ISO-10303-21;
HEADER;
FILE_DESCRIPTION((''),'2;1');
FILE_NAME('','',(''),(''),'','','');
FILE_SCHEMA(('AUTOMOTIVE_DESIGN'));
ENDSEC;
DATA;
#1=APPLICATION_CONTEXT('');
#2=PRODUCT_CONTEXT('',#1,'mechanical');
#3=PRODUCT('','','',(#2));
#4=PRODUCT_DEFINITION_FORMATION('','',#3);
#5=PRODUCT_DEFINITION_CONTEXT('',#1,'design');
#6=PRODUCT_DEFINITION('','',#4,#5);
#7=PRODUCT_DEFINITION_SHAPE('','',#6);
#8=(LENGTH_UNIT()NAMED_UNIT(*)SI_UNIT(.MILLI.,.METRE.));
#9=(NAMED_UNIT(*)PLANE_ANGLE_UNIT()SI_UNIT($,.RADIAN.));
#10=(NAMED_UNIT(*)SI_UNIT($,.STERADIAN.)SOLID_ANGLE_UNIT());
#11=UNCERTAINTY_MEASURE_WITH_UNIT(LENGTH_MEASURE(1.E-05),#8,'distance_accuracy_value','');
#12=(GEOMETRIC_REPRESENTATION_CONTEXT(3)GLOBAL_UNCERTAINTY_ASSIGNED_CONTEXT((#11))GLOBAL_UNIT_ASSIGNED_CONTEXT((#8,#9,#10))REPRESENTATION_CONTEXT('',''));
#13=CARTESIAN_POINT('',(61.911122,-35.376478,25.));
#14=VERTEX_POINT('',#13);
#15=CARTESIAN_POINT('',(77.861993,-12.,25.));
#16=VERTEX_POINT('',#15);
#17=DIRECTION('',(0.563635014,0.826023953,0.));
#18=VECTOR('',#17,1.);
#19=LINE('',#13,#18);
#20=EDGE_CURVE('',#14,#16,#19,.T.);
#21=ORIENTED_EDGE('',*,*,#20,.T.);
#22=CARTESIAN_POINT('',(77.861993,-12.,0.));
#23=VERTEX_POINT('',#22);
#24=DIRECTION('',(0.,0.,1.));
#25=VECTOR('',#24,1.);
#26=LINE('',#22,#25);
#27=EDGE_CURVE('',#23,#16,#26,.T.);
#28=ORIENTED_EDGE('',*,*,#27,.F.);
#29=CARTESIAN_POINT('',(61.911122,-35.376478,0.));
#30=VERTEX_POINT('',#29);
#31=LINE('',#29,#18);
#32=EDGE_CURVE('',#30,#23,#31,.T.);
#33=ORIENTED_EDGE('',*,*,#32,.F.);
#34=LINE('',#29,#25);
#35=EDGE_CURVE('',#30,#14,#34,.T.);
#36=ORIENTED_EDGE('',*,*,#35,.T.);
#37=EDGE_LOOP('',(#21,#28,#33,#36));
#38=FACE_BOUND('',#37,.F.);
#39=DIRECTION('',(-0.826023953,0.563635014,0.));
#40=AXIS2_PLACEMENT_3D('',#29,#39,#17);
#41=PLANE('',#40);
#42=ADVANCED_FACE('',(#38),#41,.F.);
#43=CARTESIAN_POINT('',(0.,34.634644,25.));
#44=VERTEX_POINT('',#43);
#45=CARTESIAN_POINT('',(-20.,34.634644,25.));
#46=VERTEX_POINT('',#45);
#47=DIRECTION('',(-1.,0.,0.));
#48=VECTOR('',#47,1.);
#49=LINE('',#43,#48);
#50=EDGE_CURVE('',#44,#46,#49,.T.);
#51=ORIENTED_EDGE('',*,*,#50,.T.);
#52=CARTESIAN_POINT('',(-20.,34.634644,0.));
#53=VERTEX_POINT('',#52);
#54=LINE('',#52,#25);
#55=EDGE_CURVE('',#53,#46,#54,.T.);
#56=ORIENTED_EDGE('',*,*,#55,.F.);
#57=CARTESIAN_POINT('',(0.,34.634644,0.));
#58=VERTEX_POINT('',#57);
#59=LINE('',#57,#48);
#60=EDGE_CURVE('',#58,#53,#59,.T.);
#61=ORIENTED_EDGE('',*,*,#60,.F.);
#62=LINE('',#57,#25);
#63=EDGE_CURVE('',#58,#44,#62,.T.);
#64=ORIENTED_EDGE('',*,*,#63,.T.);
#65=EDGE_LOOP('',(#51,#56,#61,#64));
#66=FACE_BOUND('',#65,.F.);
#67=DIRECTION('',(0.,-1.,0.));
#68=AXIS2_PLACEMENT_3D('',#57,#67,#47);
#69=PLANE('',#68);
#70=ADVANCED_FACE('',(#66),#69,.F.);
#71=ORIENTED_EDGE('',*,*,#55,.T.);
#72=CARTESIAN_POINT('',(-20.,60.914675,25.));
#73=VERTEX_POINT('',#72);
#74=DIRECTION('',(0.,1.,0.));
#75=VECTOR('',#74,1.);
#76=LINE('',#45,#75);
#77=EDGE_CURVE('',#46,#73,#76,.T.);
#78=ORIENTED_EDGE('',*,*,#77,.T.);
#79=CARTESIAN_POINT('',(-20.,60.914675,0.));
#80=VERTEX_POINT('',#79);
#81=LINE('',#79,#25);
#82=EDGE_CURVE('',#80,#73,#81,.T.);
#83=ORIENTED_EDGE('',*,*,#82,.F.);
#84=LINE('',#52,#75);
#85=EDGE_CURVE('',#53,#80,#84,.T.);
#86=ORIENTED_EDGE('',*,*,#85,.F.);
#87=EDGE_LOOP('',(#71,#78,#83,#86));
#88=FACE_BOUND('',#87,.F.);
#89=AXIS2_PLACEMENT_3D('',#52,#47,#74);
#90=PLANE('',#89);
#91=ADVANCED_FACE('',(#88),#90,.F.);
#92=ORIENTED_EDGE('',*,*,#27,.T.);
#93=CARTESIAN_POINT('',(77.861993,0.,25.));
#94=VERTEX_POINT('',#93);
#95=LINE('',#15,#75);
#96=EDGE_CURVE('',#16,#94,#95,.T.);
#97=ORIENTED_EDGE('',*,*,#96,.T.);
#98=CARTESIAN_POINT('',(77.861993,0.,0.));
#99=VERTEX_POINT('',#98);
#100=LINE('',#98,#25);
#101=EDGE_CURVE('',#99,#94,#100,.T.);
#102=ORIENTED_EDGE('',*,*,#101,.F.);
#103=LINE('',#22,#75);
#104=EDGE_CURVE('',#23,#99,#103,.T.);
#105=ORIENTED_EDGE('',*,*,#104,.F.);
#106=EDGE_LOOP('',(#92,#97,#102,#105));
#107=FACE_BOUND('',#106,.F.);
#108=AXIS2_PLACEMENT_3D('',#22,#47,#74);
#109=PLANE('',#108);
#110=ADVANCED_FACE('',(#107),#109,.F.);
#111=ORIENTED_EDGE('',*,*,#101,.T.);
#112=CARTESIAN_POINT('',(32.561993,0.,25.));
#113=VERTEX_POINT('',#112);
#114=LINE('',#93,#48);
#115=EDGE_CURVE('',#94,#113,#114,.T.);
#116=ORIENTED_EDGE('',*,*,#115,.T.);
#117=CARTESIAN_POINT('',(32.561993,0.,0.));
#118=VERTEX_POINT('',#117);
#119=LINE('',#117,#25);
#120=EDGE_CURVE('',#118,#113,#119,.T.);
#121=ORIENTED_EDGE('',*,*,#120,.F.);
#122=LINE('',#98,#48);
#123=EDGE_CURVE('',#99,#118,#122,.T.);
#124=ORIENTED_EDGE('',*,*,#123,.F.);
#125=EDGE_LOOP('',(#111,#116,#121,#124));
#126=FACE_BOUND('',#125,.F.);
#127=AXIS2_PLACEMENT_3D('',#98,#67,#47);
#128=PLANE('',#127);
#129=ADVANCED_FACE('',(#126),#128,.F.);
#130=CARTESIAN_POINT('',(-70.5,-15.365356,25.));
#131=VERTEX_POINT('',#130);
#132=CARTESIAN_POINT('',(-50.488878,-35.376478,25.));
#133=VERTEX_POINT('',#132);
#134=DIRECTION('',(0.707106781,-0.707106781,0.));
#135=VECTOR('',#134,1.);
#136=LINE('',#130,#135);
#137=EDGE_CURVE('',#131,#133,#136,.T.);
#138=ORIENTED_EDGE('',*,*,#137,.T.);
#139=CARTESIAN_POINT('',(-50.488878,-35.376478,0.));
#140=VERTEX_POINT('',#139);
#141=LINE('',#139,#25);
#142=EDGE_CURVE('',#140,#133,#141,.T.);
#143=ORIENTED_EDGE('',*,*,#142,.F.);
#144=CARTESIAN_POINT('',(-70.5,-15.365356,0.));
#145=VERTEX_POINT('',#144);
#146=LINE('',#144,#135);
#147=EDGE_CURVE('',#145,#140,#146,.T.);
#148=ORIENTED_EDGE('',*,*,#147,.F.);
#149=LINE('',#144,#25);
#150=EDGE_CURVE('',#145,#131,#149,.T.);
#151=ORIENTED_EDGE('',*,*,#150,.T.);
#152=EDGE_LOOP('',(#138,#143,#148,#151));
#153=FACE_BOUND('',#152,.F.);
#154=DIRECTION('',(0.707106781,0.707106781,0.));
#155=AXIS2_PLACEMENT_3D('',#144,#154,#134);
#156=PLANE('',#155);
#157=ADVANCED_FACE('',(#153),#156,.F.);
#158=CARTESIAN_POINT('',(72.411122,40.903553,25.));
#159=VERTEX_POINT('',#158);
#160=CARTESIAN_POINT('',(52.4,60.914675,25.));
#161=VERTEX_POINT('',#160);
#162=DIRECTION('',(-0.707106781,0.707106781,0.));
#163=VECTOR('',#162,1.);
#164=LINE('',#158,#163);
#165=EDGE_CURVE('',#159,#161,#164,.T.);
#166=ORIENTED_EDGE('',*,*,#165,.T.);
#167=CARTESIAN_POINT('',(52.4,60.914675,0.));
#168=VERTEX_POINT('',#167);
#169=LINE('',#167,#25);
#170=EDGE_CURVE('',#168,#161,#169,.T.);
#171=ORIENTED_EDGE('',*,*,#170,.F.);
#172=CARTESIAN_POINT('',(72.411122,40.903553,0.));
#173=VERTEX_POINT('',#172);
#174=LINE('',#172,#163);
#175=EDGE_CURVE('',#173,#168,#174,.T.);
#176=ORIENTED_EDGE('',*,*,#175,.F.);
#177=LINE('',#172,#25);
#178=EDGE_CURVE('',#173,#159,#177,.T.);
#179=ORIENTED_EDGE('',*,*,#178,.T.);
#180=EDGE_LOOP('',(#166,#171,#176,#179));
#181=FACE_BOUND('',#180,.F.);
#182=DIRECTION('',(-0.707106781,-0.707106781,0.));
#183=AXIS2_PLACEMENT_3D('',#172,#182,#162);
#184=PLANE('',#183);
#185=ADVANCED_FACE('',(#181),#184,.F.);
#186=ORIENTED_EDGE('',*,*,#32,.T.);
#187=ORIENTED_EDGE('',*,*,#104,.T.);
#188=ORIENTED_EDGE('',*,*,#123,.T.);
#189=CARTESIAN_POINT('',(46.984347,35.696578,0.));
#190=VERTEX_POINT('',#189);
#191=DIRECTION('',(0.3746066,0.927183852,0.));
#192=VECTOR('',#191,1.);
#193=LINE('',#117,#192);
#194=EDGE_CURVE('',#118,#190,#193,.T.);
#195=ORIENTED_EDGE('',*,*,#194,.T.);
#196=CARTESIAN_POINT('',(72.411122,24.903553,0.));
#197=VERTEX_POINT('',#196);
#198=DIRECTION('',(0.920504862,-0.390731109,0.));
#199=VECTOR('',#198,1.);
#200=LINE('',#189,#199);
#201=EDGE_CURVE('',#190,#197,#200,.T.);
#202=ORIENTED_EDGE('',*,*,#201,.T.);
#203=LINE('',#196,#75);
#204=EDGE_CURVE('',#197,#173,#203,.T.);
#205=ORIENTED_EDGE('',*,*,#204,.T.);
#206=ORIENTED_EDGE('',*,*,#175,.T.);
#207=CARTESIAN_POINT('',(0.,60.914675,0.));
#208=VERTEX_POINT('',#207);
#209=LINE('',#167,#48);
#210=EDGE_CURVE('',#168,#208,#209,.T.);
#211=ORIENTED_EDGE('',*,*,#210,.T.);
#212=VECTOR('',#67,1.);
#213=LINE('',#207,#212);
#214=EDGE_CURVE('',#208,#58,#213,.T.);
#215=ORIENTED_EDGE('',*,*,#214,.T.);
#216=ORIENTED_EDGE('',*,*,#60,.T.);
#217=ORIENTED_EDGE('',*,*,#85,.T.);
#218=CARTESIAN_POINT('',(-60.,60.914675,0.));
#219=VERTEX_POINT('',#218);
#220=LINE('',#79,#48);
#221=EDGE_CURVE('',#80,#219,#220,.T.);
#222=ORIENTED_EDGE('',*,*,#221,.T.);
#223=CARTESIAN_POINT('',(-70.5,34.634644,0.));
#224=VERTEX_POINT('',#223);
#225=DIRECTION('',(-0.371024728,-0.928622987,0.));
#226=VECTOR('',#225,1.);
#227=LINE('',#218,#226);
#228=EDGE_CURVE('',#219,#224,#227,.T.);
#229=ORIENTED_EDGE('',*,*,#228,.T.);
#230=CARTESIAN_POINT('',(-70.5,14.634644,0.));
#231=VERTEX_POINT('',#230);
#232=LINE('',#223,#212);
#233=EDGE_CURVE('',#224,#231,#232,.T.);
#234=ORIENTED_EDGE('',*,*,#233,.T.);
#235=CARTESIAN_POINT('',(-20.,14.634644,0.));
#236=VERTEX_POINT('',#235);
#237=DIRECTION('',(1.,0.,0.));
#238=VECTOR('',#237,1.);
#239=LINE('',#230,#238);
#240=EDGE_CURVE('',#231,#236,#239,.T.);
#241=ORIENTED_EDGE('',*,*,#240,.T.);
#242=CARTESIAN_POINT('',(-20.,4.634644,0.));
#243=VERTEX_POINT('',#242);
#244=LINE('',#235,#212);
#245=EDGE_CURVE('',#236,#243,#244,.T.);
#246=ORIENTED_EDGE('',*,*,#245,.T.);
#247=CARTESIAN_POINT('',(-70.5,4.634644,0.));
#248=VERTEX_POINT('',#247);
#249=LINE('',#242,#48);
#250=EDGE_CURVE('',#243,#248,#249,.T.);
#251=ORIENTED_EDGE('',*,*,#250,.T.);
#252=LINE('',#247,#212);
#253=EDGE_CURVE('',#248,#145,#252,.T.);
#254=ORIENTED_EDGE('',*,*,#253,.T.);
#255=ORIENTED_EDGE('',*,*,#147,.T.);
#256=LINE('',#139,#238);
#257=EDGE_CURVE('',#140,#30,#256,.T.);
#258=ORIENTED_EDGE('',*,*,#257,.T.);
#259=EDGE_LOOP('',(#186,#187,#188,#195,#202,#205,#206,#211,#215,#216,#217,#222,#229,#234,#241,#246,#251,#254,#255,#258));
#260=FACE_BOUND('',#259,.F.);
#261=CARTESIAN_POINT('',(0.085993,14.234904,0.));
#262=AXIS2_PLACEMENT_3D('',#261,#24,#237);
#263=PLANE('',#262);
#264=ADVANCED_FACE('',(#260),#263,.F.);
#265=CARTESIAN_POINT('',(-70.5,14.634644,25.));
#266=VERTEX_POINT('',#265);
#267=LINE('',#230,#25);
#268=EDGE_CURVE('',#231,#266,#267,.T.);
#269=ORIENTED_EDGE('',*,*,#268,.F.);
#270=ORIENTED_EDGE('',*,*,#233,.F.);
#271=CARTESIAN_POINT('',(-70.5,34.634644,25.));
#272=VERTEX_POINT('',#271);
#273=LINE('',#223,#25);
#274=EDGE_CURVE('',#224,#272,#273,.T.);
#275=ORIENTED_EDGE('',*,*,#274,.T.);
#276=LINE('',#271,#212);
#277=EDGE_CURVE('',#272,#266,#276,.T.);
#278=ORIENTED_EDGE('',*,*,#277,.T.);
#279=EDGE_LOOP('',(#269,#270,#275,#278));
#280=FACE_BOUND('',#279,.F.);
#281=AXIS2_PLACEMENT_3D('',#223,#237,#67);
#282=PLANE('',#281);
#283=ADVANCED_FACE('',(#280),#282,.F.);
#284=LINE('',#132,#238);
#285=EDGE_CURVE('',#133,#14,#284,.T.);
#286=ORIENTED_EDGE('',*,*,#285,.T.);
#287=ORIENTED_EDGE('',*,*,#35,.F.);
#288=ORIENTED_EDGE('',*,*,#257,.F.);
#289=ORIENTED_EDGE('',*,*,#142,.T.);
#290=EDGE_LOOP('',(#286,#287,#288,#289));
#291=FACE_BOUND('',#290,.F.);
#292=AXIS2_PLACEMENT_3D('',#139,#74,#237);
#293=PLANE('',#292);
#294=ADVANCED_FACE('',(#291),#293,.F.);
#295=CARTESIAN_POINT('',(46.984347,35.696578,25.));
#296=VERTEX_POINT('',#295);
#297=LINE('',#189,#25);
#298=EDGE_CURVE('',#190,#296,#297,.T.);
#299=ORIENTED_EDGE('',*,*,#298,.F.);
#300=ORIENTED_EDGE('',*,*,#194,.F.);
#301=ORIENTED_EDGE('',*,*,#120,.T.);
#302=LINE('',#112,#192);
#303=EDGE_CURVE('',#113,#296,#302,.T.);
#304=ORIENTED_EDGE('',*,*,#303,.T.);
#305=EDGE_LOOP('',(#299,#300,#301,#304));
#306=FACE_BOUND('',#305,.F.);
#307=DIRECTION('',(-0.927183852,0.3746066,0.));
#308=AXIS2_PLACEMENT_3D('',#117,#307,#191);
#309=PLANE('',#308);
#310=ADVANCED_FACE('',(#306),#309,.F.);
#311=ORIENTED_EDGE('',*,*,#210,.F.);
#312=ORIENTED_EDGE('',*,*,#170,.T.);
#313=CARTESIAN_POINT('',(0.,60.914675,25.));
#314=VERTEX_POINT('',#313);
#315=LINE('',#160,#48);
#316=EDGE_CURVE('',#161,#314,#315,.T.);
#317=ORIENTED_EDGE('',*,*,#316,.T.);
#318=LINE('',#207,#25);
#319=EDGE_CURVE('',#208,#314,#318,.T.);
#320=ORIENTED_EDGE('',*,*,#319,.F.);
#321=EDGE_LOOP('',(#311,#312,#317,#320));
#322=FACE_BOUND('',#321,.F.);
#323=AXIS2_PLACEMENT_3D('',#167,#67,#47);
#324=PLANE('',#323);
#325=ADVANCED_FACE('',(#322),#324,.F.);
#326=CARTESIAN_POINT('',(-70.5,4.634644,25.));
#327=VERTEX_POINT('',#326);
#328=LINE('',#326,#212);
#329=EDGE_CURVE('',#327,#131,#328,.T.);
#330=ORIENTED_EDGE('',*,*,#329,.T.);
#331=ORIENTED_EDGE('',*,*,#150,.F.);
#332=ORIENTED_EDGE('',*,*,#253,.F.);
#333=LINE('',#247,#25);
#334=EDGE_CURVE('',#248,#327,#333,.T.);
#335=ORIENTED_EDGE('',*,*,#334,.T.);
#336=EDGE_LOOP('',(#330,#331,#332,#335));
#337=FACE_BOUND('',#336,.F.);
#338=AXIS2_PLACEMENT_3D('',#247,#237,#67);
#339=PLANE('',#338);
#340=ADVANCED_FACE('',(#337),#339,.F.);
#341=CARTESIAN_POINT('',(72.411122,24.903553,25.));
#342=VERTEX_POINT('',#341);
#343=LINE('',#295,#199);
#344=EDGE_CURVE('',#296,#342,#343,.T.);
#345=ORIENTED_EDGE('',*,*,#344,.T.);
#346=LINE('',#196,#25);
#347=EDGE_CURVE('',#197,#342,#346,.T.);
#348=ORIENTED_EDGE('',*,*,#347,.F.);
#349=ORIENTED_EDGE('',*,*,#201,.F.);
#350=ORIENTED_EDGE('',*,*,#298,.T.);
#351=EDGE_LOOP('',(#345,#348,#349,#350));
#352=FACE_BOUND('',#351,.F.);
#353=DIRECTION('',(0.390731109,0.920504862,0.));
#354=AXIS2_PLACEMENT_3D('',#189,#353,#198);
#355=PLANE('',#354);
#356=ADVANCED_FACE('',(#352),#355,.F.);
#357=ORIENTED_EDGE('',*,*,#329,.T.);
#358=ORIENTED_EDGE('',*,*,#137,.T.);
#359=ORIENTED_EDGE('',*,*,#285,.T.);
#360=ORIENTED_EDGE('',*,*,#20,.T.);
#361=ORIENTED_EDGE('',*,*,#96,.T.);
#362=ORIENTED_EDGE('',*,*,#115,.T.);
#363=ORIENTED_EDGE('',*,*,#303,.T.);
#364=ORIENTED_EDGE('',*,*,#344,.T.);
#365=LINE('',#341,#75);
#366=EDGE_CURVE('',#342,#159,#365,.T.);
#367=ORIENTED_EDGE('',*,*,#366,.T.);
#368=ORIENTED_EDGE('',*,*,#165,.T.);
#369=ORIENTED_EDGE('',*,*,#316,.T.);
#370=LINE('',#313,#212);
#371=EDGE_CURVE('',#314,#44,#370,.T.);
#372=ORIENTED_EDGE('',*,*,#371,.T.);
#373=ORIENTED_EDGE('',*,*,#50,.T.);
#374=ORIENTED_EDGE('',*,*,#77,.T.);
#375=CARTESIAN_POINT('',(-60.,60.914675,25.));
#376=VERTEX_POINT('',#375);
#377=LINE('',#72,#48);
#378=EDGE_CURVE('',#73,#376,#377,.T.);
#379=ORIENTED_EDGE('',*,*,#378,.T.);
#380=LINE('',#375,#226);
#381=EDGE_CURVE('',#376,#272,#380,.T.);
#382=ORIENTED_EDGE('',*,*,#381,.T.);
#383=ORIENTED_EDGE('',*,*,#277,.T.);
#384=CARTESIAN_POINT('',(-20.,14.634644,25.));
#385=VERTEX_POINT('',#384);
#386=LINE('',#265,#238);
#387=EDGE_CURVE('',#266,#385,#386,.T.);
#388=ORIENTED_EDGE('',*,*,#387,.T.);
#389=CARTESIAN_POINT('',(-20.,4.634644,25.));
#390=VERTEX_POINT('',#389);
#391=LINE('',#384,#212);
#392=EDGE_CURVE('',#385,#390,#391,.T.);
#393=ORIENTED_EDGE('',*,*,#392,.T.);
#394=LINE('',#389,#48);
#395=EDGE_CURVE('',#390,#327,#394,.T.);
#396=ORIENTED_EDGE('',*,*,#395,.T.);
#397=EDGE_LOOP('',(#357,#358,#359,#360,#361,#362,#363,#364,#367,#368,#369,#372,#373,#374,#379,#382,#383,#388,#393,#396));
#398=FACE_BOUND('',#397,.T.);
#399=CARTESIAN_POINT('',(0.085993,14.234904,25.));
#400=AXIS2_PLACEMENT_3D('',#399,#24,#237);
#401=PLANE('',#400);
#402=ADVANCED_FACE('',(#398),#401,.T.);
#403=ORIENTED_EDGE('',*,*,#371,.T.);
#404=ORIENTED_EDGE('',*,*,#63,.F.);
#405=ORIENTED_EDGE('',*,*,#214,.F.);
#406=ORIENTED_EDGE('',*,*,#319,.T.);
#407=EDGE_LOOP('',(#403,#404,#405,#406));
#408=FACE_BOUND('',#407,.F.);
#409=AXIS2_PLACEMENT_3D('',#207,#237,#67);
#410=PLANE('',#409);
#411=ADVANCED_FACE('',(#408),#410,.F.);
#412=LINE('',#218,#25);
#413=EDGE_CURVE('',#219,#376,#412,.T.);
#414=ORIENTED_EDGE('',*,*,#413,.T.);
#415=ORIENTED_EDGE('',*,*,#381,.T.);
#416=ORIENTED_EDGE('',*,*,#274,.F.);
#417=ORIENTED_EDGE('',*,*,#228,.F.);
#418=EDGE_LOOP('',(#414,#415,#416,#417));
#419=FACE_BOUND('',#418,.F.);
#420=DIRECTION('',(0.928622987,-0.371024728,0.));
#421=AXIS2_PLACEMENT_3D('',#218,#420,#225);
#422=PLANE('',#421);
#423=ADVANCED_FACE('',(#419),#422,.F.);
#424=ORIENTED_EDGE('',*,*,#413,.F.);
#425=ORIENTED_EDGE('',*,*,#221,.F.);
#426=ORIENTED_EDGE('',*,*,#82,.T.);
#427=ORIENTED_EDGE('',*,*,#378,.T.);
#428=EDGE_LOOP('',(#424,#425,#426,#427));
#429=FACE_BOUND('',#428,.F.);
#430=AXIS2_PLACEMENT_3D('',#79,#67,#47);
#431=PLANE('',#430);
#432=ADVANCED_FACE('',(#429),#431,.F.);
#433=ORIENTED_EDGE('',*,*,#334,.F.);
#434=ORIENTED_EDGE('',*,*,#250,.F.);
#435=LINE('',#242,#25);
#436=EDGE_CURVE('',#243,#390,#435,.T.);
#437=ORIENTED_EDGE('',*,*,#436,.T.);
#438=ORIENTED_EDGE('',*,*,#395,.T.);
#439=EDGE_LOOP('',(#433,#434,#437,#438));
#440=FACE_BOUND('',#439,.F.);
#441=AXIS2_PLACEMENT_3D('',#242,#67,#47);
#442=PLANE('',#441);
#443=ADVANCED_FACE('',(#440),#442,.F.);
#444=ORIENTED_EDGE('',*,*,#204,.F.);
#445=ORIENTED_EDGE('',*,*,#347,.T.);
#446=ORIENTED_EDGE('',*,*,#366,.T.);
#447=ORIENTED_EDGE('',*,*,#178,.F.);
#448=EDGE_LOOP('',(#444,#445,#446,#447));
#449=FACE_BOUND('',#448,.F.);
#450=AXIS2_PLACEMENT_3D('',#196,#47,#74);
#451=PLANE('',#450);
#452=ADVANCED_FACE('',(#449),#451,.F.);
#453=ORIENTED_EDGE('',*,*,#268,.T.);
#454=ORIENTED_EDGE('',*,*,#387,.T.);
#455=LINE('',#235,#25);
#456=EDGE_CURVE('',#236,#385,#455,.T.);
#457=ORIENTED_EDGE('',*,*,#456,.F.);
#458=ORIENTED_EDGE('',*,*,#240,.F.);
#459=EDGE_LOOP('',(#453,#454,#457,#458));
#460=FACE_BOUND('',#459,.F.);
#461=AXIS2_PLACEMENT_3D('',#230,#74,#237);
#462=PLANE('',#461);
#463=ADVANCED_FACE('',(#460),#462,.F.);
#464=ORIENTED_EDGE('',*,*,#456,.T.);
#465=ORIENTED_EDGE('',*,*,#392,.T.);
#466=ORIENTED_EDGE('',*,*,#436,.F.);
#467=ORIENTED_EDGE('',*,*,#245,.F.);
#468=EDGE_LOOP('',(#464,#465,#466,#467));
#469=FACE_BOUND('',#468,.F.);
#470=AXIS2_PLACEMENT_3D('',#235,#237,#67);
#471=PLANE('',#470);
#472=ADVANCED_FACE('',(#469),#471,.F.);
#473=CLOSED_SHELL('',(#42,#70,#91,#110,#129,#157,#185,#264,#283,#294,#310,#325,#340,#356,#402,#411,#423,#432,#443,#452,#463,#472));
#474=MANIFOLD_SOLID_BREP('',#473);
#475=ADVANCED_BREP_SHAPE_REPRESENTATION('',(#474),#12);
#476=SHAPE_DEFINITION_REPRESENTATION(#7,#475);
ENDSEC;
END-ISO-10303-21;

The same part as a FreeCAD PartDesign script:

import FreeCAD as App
import Part
import Sketcher
from FreeCAD import Vector
Q = App.Units.Quantity

doc = App.newDocument("Part")
body = doc.addObject("PartDesign::Body", "Body")

# Sketch on XY plane
sketch1 = body.newObject("Sketcher::SketchObject", "Sketch")
sketch1.AttachmentSupport = (doc.getObject("XY_Plane"), [""])
sketch1.MapMode = "FlatFace"
sketch1.addGeometry([
    Part.LineSegment(Vector(-20, 60.914675, 0), Vector(-60, 60.914675, 0)),  # 0
    Part.LineSegment(Vector(-60, 60.914675, 0), Vector(-70.5, 34.634644, 0)),  # 1
    Part.LineSegment(Vector(-70.5, 34.634644, 0), Vector(-70.5, 14.634644, 0)),  # 2
    Part.LineSegment(Vector(-70.5, 14.634644, 0), Vector(-20, 14.634644, 0)),  # 3
    Part.LineSegment(Vector(-20, 14.634644, 0), Vector(-20, 4.634644, 0)),  # 4
    Part.LineSegment(Vector(-20, 4.634644, 0), Vector(-70.5, 4.634644, 0)),  # 5
    Part.LineSegment(Vector(-70.5, 4.634644, 0), Vector(-70.5, -15.365356, 0)),  # 6
    Part.LineSegment(Vector(-70.5, -15.365356, 0), Vector(-50.488878, -35.376478, 0)),  # 7
    Part.LineSegment(Vector(-50.488878, -35.376478, 0), Vector(61.911122, -35.376478, 0)),  # 8
    Part.LineSegment(Vector(61.911122, -35.376478, 0), Vector(77.861993, -12, 0)),  # 9
    Part.LineSegment(Vector(77.861993, -12, 0), Vector(77.861993, 0, 0)),  # 10
    Part.LineSegment(Vector(77.861993, 0, 0), Vector(32.561993, 0, 0)),  # 11
    Part.LineSegment(Vector(32.561993, 0, 0), Vector(46.984347, 35.696578, 0)),  # 12
    Part.LineSegment(Vector(46.984347, 35.696578, 0), Vector(72.411122, 24.903553, 0)),  # 13
    Part.LineSegment(Vector(72.411122, 24.903553, 0), Vector(72.411122, 40.903553, 0)),  # 14
    Part.LineSegment(Vector(72.411122, 40.903553, 0), Vector(52.4, 60.914675, 0)),  # 15
    Part.LineSegment(Vector(52.4, 60.914675, 0), Vector(0, 60.914675, 0)),  # 16
    Part.LineSegment(Vector(0, 60.914675, 0), Vector(0, 34.634644, 0)),  # 17
    Part.LineSegment(Vector(0, 34.634644, 0), Vector(-20, 34.634644, 0)),  # 18
    Part.LineSegment(Vector(-20, 34.634644, 0), Vector(-20, 60.914675, 0)),  # 19
], False)
sketch1.addConstraint([
    Sketcher.Constraint("Coincident", 0, 2, 1, 1),
    Sketcher.Constraint("Coincident", 1, 2, 2, 1),
    Sketcher.Constraint("Coincident", 2, 2, 3, 1),
    Sketcher.Constraint("Coincident", 3, 2, 4, 1),
    Sketcher.Constraint("Coincident", 4, 2, 5, 1),
    Sketcher.Constraint("Coincident", 5, 2, 6, 1),
    Sketcher.Constraint("Coincident", 6, 2, 7, 1),
    Sketcher.Constraint("Coincident", 7, 2, 8, 1),
    Sketcher.Constraint("Coincident", 8, 2, 9, 1),
    Sketcher.Constraint("Coincident", 9, 2, 10, 1),
    Sketcher.Constraint("Coincident", 10, 2, 11, 1),
    Sketcher.Constraint("Coincident", 11, 2, 12, 1),
    Sketcher.Constraint("Coincident", 12, 2, 13, 1),
    Sketcher.Constraint("Coincident", 13, 2, 14, 1),
    Sketcher.Constraint("Coincident", 14, 2, 15, 1),
    Sketcher.Constraint("Coincident", 15, 2, 16, 1),
    Sketcher.Constraint("Coincident", 16, 2, 17, 1),
    Sketcher.Constraint("Coincident", 17, 2, 18, 1),
    Sketcher.Constraint("Coincident", 18, 2, 19, 1),
    Sketcher.Constraint("Coincident", 19, 2, 0, 1),
    Sketcher.Constraint("Horizontal", 0),
    Sketcher.Constraint("Vertical", 2),
    Sketcher.Constraint("Horizontal", 3),
    Sketcher.Constraint("Vertical", 4),
    Sketcher.Constraint("Horizontal", 5),
    Sketcher.Constraint("Vertical", 6),
    Sketcher.Constraint("Horizontal", 8),
    Sketcher.Constraint("Vertical", 10),
    Sketcher.Constraint("Horizontal", 11),
    Sketcher.Constraint("Vertical", 14),
    Sketcher.Constraint("Horizontal", 16),
    Sketcher.Constraint("Vertical", 17),
    Sketcher.Constraint("Horizontal", 18),
    Sketcher.Constraint("Vertical", 19),
    Sketcher.Constraint("PointOnObject", 10, 2, -1),
    Sketcher.Constraint("PointOnObject", 16, 2, -2),
    Sketcher.Constraint("Parallel", 7, 15),
    Sketcher.Constraint("Horizontal", 0, 2, 15, 2),
    Sketcher.Constraint("Horizontal", 1, 2, 17, 2),
    Sketcher.Constraint("Vertical", 2, 2, 5, 2),
    Sketcher.Constraint("Vertical", 4, 2, 18, 2),
    Sketcher.Constraint("Equal", 18, 2),
    Sketcher.Constraint("Equal", 2, 6),
    Sketcher.Constraint("Equal", 1, 7),
    Sketcher.Constraint("Equal", 7, 9),
    Sketcher.Constraint("Equal", 9, 15),
    Sketcher.Constraint("DistanceX", 0, 2, 0, 1, 40.0),
    Sketcher.Constraint("DistanceX", 18, 2, 18, 1, 20.0),
    Sketcher.Constraint("DistanceY", 4, 2, 4, 1, 10.0),
    Sketcher.Constraint("DistanceY", 10, 1, 10, 2, 12.0),
    Sketcher.Constraint("DistanceY", 14, 1, 14, 2, 16.0),
    Sketcher.Constraint("Angle", 7, Q("-45 deg")),
    Sketcher.Constraint("Angle", 12, Q("68 deg")),
    Sketcher.Constraint("Angle", 13, Q("-22.999999 deg")),
    Sketcher.Constraint("DistanceX", 3, 1, 3, 2, 50.5),
    Sketcher.Constraint("DistanceX", 8, 1, 8, 2, 112.4),
    Sketcher.Constraint("DistanceX", 11, 2, 11, 1, 45.3),
    Sketcher.Constraint("DistanceX", 16, 2, 16, 1, 52.4),
    Sketcher.Constraint("Distance", 1, 28.300001),
    Sketcher.Constraint("Distance", 12, 38.5),
])
pad1 = body.newObject("PartDesign::Pad", "Pad")
pad1.Profile = sketch1
pad1.Length = 25

doc.recompute()
